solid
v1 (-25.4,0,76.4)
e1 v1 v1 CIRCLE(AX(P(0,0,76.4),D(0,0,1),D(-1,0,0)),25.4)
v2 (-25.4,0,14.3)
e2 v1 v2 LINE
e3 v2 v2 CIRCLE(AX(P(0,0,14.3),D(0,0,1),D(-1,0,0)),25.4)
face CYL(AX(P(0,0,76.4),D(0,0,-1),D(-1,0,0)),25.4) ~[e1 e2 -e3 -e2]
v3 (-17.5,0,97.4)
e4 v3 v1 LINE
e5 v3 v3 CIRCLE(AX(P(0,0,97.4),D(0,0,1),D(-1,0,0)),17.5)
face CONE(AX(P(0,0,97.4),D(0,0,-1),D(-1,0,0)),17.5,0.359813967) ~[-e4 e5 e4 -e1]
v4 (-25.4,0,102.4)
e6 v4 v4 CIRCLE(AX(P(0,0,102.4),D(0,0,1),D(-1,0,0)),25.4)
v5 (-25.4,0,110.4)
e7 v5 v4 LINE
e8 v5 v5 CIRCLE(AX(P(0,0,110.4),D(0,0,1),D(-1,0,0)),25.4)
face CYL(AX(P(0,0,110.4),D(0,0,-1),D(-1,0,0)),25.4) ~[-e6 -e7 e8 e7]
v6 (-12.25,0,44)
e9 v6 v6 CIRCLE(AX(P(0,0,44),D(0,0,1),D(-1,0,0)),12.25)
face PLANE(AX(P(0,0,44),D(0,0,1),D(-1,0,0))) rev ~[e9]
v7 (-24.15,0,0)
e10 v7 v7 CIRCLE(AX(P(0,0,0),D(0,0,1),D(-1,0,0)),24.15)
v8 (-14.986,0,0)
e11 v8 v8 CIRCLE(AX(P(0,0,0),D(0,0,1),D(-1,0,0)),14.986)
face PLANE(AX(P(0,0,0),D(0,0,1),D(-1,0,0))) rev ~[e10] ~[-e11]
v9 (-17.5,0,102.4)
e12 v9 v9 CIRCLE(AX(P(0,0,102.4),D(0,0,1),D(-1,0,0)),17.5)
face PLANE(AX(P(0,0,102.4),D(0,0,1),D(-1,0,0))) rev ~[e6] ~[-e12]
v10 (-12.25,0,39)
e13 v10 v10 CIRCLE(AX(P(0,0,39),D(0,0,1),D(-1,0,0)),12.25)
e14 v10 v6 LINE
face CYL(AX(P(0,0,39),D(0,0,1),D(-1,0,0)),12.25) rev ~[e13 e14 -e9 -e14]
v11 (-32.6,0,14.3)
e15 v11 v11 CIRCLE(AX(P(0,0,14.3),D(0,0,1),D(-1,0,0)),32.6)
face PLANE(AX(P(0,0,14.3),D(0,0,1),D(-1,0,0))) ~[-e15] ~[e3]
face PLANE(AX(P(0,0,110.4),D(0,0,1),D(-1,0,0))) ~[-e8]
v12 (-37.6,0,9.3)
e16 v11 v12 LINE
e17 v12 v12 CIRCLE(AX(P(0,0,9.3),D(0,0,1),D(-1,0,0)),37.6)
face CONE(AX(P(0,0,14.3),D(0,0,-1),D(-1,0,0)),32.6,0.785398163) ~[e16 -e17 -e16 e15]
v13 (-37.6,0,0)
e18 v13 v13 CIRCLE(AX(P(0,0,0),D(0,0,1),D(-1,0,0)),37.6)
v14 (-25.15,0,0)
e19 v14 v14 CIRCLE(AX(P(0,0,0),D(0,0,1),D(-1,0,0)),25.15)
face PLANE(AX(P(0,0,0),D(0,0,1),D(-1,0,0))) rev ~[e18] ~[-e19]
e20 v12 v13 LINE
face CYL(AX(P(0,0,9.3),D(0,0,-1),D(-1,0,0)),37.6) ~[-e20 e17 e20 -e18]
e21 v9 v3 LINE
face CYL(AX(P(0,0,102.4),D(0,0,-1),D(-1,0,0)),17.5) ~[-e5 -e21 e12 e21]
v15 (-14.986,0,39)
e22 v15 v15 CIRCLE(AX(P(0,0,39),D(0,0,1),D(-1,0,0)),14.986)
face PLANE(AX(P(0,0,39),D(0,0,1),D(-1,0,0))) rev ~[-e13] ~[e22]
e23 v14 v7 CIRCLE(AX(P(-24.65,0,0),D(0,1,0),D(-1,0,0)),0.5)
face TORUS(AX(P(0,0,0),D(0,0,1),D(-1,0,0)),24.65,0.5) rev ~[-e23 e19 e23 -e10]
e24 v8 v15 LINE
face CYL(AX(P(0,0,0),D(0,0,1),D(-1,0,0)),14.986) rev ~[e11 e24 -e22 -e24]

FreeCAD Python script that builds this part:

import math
import FreeCAD as App
import Part
import Sketcher
Q = App.Units.Quantity

doc = App.newDocument("Part")
params = doc.addObject("Spreadsheet::Sheet", "Params")
for row, (alias, value) in enumerate([
    ("sketch1_radius", "0.5 mm"),
    ("sketch1_height", "39 mm"),
    ("sketch1_height2", "5 mm"),
    ("sketch1_height3", "8 mm"),
    ("sketch1_width", "25.4 mm"),
    ("revolution_angle", "360 deg"),
], start=1):
    params.set(f"A{row}", alias)
    params.set(f"B{row}", "=" + value)
    params.setAlias(f"B{row}", alias)

body = doc.addObject("PartDesign::Body", "Body")

sketch1 = body.newObject("Sketcher::SketchObject", "Sketch")
sketch1.AttachmentSupport = (doc.getObject("XZ_Plane"), [""])
sketch1.MapMode = "FlatFace"
sketch1.addGeometry([
    Part.LineSegment(App.Vector(-37.6, 9.3, 0), App.Vector(-37.6, 0, 0)),
    Part.LineSegment(App.Vector(-37.6, 0, 0), App.Vector(-25.15, 0, 0)),
    Part.ArcOfCircle(Part.Circle(App.Vector(-24.65, 0, 0), App.Vector(0, 0, 1), 0.5), math.radians(0), math.radians(180)),
    Part.LineSegment(App.Vector(-24.15, 0, 0), App.Vector(-14.986, 0, 0)),
    Part.LineSegment(App.Vector(-14.986, 0, 0), App.Vector(-14.986, 39, 0)),
    Part.LineSegment(App.Vector(-14.986, 39, 0), App.Vector(-12.25, 39, 0)),
    Part.LineSegment(App.Vector(-12.25, 39, 0), App.Vector(-12.25, 44, 0)),
    Part.LineSegment(App.Vector(-12.25, 44, 0), App.Vector(0, 44, 0)),
    Part.LineSegment(App.Vector(0, 44, 0), App.Vector(0, 110.4, 0)),
    Part.LineSegment(App.Vector(0, 110.4, 0), App.Vector(-25.4, 110.4, 0)),
    Part.LineSegment(App.Vector(-25.4, 110.4, 0), App.Vector(-25.4, 102.4, 0)),
    Part.LineSegment(App.Vector(-25.4, 102.4, 0), App.Vector(-17.5, 102.4, 0)),
    Part.LineSegment(App.Vector(-17.5, 102.4, 0), App.Vector(-17.5, 97.4, 0)),
    Part.LineSegment(App.Vector(-17.5, 97.4, 0), App.Vector(-25.4, 76.4, 0)),
    Part.LineSegment(App.Vector(-25.4, 76.4, 0), App.Vector(-25.4, 14.3, 0)),
    Part.LineSegment(App.Vector(-25.4, 14.3, 0), App.Vector(-32.6, 14.3, 0)),
    Part.LineSegment(App.Vector(-32.6, 14.3, 0), App.Vector(-37.6, 9.3, 0)),
], False)
sketch1.addConstraint([
    Sketcher.Constraint("Coincident", 0, 2, 1, 1),
    Sketcher.Constraint("Coincident", 1, 2, 2, 2),
    Sketcher.Constraint("Coincident", 2, 1, 3, 1),
    Sketcher.Constraint("Coincident", 3, 2, 4, 1),
    Sketcher.Constraint("Coincident", 4, 2, 5, 1),
    Sketcher.Constraint("Coincident", 5, 2, 6, 1),
    Sketcher.Constraint("Coincident", 6, 2, 7, 1),
    Sketcher.Constraint("Coincident", 7, 2, 8, 1),
    Sketcher.Constraint("Coincident", 8, 2, 9, 1),
    Sketcher.Constraint("Coincident", 9, 2, 10, 1),
    Sketcher.Constraint("Coincident", 10, 2, 11, 1),
    Sketcher.Constraint("Coincident", 11, 2, 12, 1),
    Sketcher.Constraint("Coincident", 12, 2, 13, 1),
    Sketcher.Constraint("Coincident", 13, 2, 14, 1),
    Sketcher.Constraint("Coincident", 14, 2, 15, 1),
    Sketcher.Constraint("Coincident", 15, 2, 16, 1),
    Sketcher.Constraint("Coincident", 16, 2, 0, 1),
    Sketcher.Constraint("Vertical", 0),
    Sketcher.Constraint("Horizontal", 1),
    Sketcher.Constraint("Horizontal", 3),
    Sketcher.Constraint("Vertical", 4),
    Sketcher.Constraint("Horizontal", 5),
    Sketcher.Constraint("Vertical", 6),
    Sketcher.Constraint("Horizontal", 7),
    Sketcher.Constraint("Vertical", 8),
    Sketcher.Constraint("Horizontal", 9),
    Sketcher.Constraint("Vertical", 10),
    Sketcher.Constraint("Horizontal", 11),
    Sketcher.Constraint("Vertical", 12),
    Sketcher.Constraint("Vertical", 14),
    Sketcher.Constraint("Horizontal", 15),
    Sketcher.Constraint("PointOnObject", 2, 3, -1),
    Sketcher.Constraint("PointOnObject", 0, 2, -1),
    Sketcher.Constraint("PointOnObject", 2, 1, -1),
    Sketcher.Constraint("PointOnObject", 7, 2, -2),
    Sketcher.Constraint("Vertical", 10, 2, 13, 2),
    Sketcher.Constraint("Equal", 6, 12),
    Sketcher.Constraint("Radius", 2, 0.5),
    Sketcher.Constraint("DistanceY", 4, 1, 4, 2, 39.0),
    Sketcher.Constraint("DistanceY", 6, 1, 6, 2, 5.0),
    Sketcher.Constraint("DistanceY", 10, 2, 10, 1, 8.0),
    Sketcher.Constraint("Angle", 16, Q("-135 deg")),
    Sketcher.Constraint("DistanceX", 9, 2, 9, 1, 25.4),
    Sketcher.Constraint("DistanceX", 11, 1, 11, 2, 7.9),
    Sketcher.Constraint("DistanceX", 15, 2, 15, 1, 7.2),
    Sketcher.Constraint("DistanceY", 0, 2, 0, 1, 9.3),
    Sketcher.Constraint("DistanceY", 8, 1, 8, 2, 66.4),
    Sketcher.Constraint("DistanceY", 14, 2, 14, 1, 62.1),
    Sketcher.Constraint("DistanceY", 13, 2, 12, 2, 21.0),
    Sketcher.Constraint("DistanceX", 1, 1, 1, 2, 12.45),
    Sketcher.Constraint("DistanceX", 7, 1, 7, 2, 12.25),
    Sketcher.Constraint("DistanceX", 3, 1, 3, 2, 9.164),
])
sketch1.setExpression("Constraints[37]", "Params.sketch1_radius")
sketch1.setExpression("Constraints[38]", "Params.sketch1_height")
sketch1.setExpression("Constraints[39]", "Params.sketch1_height2")
sketch1.setExpression("Constraints[40]", "Params.sketch1_height3")
sketch1.setExpression("Constraints[42]", "Params.sketch1_width")
revolution = body.newObject("PartDesign::Revolution", "Revolution")
revolution.Profile = sketch1
revolution.ReferenceAxis = (sketch1, ["V_Axis"])
revolution.setExpression("Angle", "Params.revolution_angle")

doc.recompute()
